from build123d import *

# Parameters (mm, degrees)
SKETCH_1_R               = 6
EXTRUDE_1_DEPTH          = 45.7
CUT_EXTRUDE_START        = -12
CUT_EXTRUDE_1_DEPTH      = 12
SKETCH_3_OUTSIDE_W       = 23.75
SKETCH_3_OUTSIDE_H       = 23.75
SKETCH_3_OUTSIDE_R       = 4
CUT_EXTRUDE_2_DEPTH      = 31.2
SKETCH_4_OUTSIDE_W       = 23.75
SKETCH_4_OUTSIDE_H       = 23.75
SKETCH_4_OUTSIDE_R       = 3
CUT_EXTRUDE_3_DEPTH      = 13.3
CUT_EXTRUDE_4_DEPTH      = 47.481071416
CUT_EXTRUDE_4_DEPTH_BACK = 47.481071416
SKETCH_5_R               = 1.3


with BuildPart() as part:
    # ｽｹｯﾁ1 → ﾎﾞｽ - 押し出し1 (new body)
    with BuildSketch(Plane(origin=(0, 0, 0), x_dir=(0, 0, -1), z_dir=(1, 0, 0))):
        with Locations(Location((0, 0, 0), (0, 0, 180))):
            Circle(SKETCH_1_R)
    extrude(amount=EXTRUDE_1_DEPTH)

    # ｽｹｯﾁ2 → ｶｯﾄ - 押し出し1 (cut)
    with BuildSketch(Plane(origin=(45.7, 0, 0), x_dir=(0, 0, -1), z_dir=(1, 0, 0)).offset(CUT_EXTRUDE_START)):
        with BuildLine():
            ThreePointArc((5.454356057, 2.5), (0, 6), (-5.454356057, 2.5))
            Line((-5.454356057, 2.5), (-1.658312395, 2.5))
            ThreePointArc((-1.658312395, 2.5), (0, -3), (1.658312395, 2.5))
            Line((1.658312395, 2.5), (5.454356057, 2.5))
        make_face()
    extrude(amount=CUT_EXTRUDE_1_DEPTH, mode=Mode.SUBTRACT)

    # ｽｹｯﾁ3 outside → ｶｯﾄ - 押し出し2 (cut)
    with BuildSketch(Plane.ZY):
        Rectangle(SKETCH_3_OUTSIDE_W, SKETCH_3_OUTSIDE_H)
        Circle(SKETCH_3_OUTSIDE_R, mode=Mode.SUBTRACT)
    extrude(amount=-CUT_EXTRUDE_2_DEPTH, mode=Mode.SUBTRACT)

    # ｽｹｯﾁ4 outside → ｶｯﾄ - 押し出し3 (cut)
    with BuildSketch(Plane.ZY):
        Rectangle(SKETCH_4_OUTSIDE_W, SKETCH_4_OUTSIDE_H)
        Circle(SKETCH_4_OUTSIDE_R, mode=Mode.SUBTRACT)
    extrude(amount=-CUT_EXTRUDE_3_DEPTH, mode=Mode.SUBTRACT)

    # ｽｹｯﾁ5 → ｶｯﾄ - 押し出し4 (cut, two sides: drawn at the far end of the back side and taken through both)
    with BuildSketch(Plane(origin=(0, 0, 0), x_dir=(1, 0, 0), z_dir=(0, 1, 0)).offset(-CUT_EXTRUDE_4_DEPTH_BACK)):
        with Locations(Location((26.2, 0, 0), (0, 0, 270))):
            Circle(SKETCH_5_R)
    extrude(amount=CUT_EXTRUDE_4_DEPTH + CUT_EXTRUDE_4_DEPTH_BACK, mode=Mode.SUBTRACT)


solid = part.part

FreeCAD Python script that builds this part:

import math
import FreeCAD as App
import Part
import Sketcher
from FreeCAD import Vector
Q = App.Units.Quantity

doc = App.newDocument("Part")
body = doc.addObject("PartDesign::Body", "Body")

# Sketch on YZ plane
sketch1 = body.newObject("Sketcher::SketchObject", "Sketch")
sketch1.AttachmentSupport = (doc.getObject("YZ_Plane"), [""])
sketch1.MapMode = "FlatFace"
sketch1.addGeometry(Part.Circle(Vector(0, 0, 0), Vector(0, 0, 1), 6), False)
sketch1.addConstraint(Sketcher.Constraint("Coincident", 0, 3, -1, 1))
sketch1.addConstraint(Sketcher.Constraint("Diameter", 0, Q("12 mm")))
pad1 = body.newObject("PartDesign::Pad", "Pad")
pad1.Profile = sketch1
pad1.Length = 45.7

# Sketch on YZ plane
sketch2 = body.newObject("Sketcher::SketchObject", "Sketch001")
sketch2.AttachmentSupport = (doc.getObject("YZ_Plane"), [""])
sketch2.MapMode = "FlatFace"
sketch2.AttachmentOffset = App.Placement(Vector(0, 0, 33.7), App.Rotation())
sketch2.addGeometry(Part.ArcOfCircle(Part.Circle(Vector(0, 0, 0), Vector(0, 0, 1), 6), math.radians(-65), math.radians(65)), False)
sketch2.addGeometry(Part.LineSegment(Vector(2.5, 5.5, 0), Vector(2.5, 1.7, 0)), False)
sketch2.addGeometry(Part.ArcOfCircle(Part.Circle(Vector(0, 0, 0), Vector(0, 0, 1), 3), math.radians(34), math.radians(326)), False)
sketch2.addGeometry(Part.LineSegment(Vector(2.5, -1.7, 0), Vector(2.5, -5.5, 0)), False)
sketch2.addConstraint(Sketcher.Constraint("Coincident", 0, 2, 1, 1))
sketch2.addConstraint(Sketcher.Constraint("Coincident", 1, 2, 2, 1))
sketch2.addConstraint(Sketcher.Constraint("Coincident", 2, 2, 3, 1))
sketch2.addConstraint(Sketcher.Constraint("Coincident", 3, 2, 0, 1))
sketch2.addConstraint(Sketcher.Constraint("Vertical", 1))
sketch2.addConstraint(Sketcher.Constraint("Vertical", 3))
sketch2.addConstraint(Sketcher.Constraint("Coincident", 0, 3, -1, 1))
sketch2.addConstraint(Sketcher.Constraint("Coincident", 2, 3, -1, 1))
sketch2.addConstraint(Sketcher.Constraint("Vertical", 1, 2, 2, 2))
sketch2.addConstraint(Sketcher.Constraint("Radius", 0, Q("6 mm")))
sketch2.addConstraint(Sketcher.Constraint("Radius", 2, Q("3 mm")))
sketch2.addConstraint(Sketcher.Constraint("DistanceX", -1, 1, 0, 2, Q("2.5 mm")))
pocket1 = body.newObject("PartDesign::Pocket", "Pocket")
pocket1.Profile = sketch2
pocket1.Length = 12
pocket1.Reversed = True

# Sketch on YZ plane
sketch3 = body.newObject("Sketcher::SketchObject", "Sketch002")
sketch3.AttachmentSupport = (doc.getObject("YZ_Plane"), [""])
sketch3.MapMode = "FlatFace"
sketch3.addGeometry(Part.LineSegment(Vector(11.9, -11.9, 0), Vector(-11.9, -11.9, 0)), False)
sketch3.addGeometry(Part.LineSegment(Vector(-11.9, -11.9, 0), Vector(-11.9, 11.9, 0)), False)
sketch3.addGeometry(Part.LineSegment(Vector(-11.9, 11.9, 0), Vector(11.9, 11.9, 0)), False)
sketch3.addGeometry(Part.LineSegment(Vector(11.9, 11.9, 0), Vector(11.9, -11.9, 0)), False)
sketch3.addGeometry(Part.Circle(Vector(0, 0, 0), Vector(0, 0, 1), 4), False)
sketch3.addConstraint(Sketcher.Constraint("Coincident", 0, 2, 1, 1))
sketch3.addConstraint(Sketcher.Constraint("Coincident", 1, 2, 2, 1))
sketch3.addConstraint(Sketcher.Constraint("Coincident", 2, 2, 3, 1))
sketch3.addConstraint(Sketcher.Constraint("Coincident", 3, 2, 0, 1))
sketch3.addConstraint(Sketcher.Constraint("Horizontal", 0))
sketch3.addConstraint(Sketcher.Constraint("Vertical", 1))
sketch3.addConstraint(Sketcher.Constraint("Horizontal", 2))
sketch3.addConstraint(Sketcher.Constraint("Vertical", 3))
sketch3.addConstraint(Sketcher.Constraint("Coincident", 4, 3, -1, 1))
sketch3.addConstraint(Sketcher.Constraint("Symmetric", 0, 2, 2, 2, -1, 1))
sketch3.addConstraint(Sketcher.Constraint("Equal", 2, 1))
sketch3.addConstraint(Sketcher.Constraint("Diameter", 4, Q("8 mm")))
sketch3.addConstraint(Sketcher.Constraint("DistanceX", 0, 2, 0, 1, Q("23.75 mm")))
pocket2 = body.newObject("PartDesign::Pocket", "Pocket001")
pocket2.Profile = sketch3
pocket2.Length = 31.2
pocket2.Reversed = True

# Sketch on YZ plane
sketch4 = body.newObject("Sketcher::SketchObject", "Sketch003")
sketch4.AttachmentSupport = (doc.getObject("YZ_Plane"), [""])
sketch4.MapMode = "FlatFace"
sketch4.addGeometry(Part.LineSegment(Vector(11.9, -11.9, 0), Vector(-11.9, -11.9, 0)), False)
sketch4.addGeometry(Part.LineSegment(Vector(-11.9, -11.9, 0), Vector(-11.9, 11.9, 0)), False)
sketch4.addGeometry(Part.LineSegment(Vector(-11.9, 11.9, 0), Vector(11.9, 11.9, 0)), False)
sketch4.addGeometry(Part.LineSegment(Vector(11.9, 11.9, 0), Vector(11.9, -11.9, 0)), False)
sketch4.addGeometry(Part.Circle(Vector(0, 0, 0), Vector(0, 0, 1), 3), False)
sketch4.addConstraint(Sketcher.Constraint("Coincident", 0, 2, 1, 1))
sketch4.addConstraint(Sketcher.Constraint("Coincident", 1, 2, 2, 1))
sketch4.addConstraint(Sketcher.Constraint("Coincident", 2, 2, 3, 1))
sketch4.addConstraint(Sketcher.Constraint("Coincident", 3, 2, 0, 1))
sketch4.addConstraint(Sketcher.Constraint("Horizontal", 0))
sketch4.addConstraint(Sketcher.Constraint("Vertical", 1))
sketch4.addConstraint(Sketcher.Constraint("Horizontal", 2))
sketch4.addConstraint(Sketcher.Constraint("Vertical", 3))
sketch4.addConstraint(Sketcher.Constraint("Coincident", 4, 3, -1, 1))
sketch4.addConstraint(Sketcher.Constraint("Symmetric", 0, 2, 2, 2, -1, 1))
sketch4.addConstraint(Sketcher.Constraint("Equal", 2, 1))
sketch4.addConstraint(Sketcher.Constraint("Diameter", 4, Q("6 mm")))
sketch4.addConstraint(Sketcher.Constraint("DistanceX", 0, 2, 0, 1, Q("23.75 mm")))
pocket3 = body.newObject("PartDesign::Pocket", "Pocket002")
pocket3.Profile = sketch4
pocket3.Length = 13.3
pocket3.Reversed = True

# Sketch on XZ plane
sketch5 = body.newObject("Sketcher::SketchObject", "Sketch004")
sketch5.AttachmentSupport = (doc.getObject("XZ_Plane"), [""])
sketch5.MapMode = "FlatFace"
sketch5.addGeometry(Part.Circle(Vector(26.2, 0, 0), Vector(0, 0, 1), 1.3), False)
sketch5.addConstraint(Sketcher.Constraint("PointOnObject", 0, 3, -1))
sketch5.addConstraint(Sketcher.Constraint("Diameter", 0, Q("2.6 mm")))
sketch5.addConstraint(Sketcher.Constraint("DistanceX", -1, 1, 0, 3, Q("26.2 mm")))
pocket4 = body.newObject("PartDesign::Pocket", "Pocket003")
pocket4.Profile = sketch5
pocket4.Type = "ThroughAll"
pocket4.Midplane = True

doc.recompute()
